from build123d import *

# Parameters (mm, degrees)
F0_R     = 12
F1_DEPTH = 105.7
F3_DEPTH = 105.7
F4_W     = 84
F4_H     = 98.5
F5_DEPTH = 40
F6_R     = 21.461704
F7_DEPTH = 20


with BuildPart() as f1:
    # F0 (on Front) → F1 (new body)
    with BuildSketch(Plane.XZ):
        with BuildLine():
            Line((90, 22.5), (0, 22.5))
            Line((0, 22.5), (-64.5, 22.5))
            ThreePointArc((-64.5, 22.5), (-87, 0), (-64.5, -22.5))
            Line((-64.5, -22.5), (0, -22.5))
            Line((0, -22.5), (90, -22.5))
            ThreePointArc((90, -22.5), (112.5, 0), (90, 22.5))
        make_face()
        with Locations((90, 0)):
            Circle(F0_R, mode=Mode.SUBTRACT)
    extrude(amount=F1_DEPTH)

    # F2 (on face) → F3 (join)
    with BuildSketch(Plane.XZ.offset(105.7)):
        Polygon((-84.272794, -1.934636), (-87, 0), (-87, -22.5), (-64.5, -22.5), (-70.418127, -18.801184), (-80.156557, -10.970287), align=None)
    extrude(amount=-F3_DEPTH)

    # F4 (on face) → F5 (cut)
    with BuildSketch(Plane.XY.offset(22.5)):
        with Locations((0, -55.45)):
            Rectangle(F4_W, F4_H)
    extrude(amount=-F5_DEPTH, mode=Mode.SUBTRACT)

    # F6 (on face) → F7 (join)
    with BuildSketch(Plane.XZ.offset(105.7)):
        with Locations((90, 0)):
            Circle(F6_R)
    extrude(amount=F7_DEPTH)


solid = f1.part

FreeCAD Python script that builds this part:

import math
import FreeCAD as App
import Part
import Sketcher

V = App.Vector
Q = App.Units.Quantity


def add_polygon(sketch, points):
    """Adds a closed chain of lines whose ends are joined by coincident constraints."""
    first, n = sketch.GeometryCount, len(points)
    for a, b in zip(points, points[1:] + points[:1]):
        sketch.addGeometry(Part.LineSegment(App.Vector(*a, 0), App.Vector(*b, 0)), False)
    for i in range(n):
        sketch.addConstraint(Sketcher.Constraint("Coincident", first + i, 2, first + (i + 1) % n, 1))

doc = App.newDocument("Part")
body = doc.addObject("PartDesign::Body", "Body")

sketch1 = doc.addObject("Sketcher::SketchObject", "Sketch")
body.addObject(sketch1)
sketch1.AttachmentSupport = (doc.XZ_Plane, [""])
sketch1.MapMode = "FlatFace"
sketch1.addGeometry([
    Part.LineSegment(V(90, 22, 0), V(-64, 22, 0)),
    Part.ArcOfCircle(Part.Circle(V(-64, 0, 0), V(0, 0, 1), 22), math.radians(90), math.radians(270)),
    Part.LineSegment(V(-64, -22, 0), V(90, -22, 0)),
    Part.ArcOfCircle(Part.Circle(V(90, 0, 0), V(0, 0, 1), 22), math.radians(-90), math.radians(90)),
    Part.Circle(V(90, 0, 0), V(0, 0, 1), 12),
], False)
sketch1.addConstraint([
    Sketcher.Constraint("Tangent", 0, 2, 1, 1),
    Sketcher.Constraint("Tangent", 1, 2, 2, 1),
    Sketcher.Constraint("Tangent", 2, 2, 3, 1),
    Sketcher.Constraint("Tangent", 3, 2, 0, 1),
    Sketcher.Constraint("Horizontal", 0),
    Sketcher.Constraint("Horizontal", 2),
    Sketcher.Constraint("Coincident", 4, 3, 3, 3),
    Sketcher.Constraint("PointOnObject", 1, 3, -1),
    Sketcher.Constraint("Diameter", 4, Q("24 mm")),
    Sketcher.Constraint("Radius", 1, Q("22.5 mm")),
    Sketcher.Constraint("DistanceX", 0, 2, 0, 1, Q("154.5 mm")),
    Sketcher.Constraint("DistanceX", -1, 1, 3, 3, Q("90 mm")),
])
pad1 = doc.addObject("PartDesign::Pad", "Pad")
body.addObject(pad1)
pad1.Profile = sketch1
pad1.Length = 105.7

sketch2 = doc.addObject("Sketcher::SketchObject", "Sketch001")
body.addObject(sketch2)
sketch2.AttachmentSupport = (doc.XZ_Plane, [""])
sketch2.MapMode = "FlatFace"
sketch2.AttachmentOffset = App.Placement(V(0, 0, 105.7), App.Rotation())
add_polygon(sketch2, [(-84.3, -1.9), (-87, 0), (-87, -22.5), (-64.5, -22.5), (-70.4, -18.8), (-80.2, -11)])
sketch2.addConstraint([
    Sketcher.Constraint("Vertical", 1),
    Sketcher.Constraint("Horizontal", 2),
    Sketcher.Constraint("PointOnObject", 0, 2, -1),
    Sketcher.Constraint("Equal", 2, 1),
    Sketcher.Constraint("DistanceX", 2, 1, 2, 2, Q("22.5 mm")),
    Sketcher.Constraint("DistanceX", 0, 2, -1, 1, Q("87 mm")),
    Sketcher.Constraint("Distance", 4, Q("12.496398 mm")),
    Sketcher.Constraint("Distance", 0, Q("3.343721 mm")),
    Sketcher.Constraint("Distance", 3, Q("6.97893 mm")),
    Sketcher.Constraint("Distance", 5, Q("9.929068 mm")),
    Sketcher.Constraint("DistanceX", 4, 2, 3, 2, Q("9.73843 mm")),
    Sketcher.Constraint("DistanceY", 4, 2, 5, 2, Q("9.035651 mm")),
])
pad2 = doc.addObject("PartDesign::Pad", "Pad001")
body.addObject(pad2)
pad2.Profile = sketch2
pad2.Length = 105.7
pad2.Reversed = True

sketch3 = doc.addObject("Sketcher::SketchObject", "Sketch002")
body.addObject(sketch3)
sketch3.AttachmentSupport = (doc.XY_Plane, [""])
sketch3.MapMode = "FlatFace"
sketch3.AttachmentOffset = App.Placement(V(0, 0, 22.5), App.Rotation())
add_polygon(sketch3, [(-42, -6), (-42, -105), (42, -105), (42, -6)])
sketch3.addConstraint([
    Sketcher.Constraint("Vertical", 0),
    Sketcher.Constraint("Horizontal", 1),
    Sketcher.Constraint("Vertical", 2),
    Sketcher.Constraint("Horizontal", 3),
    Sketcher.Constraint("DistanceX", 1, 1, 1, 2, Q("84 mm")),
    Sketcher.Constraint("DistanceY", 0, 2, 0, 1, Q("98.5 mm")),
    Sketcher.Constraint("DistanceX", 0, 2, -1, 1, Q("42 mm")),
    Sketcher.Constraint("DistanceY", 0, 2, -1, 1, Q("104.7 mm")),
])
pocket1 = doc.addObject("PartDesign::Pocket", "Pocket")
body.addObject(pocket1)
pocket1.Profile = sketch3
pocket1.Length = 40

sketch4 = doc.addObject("Sketcher::SketchObject", "Sketch003")
body.addObject(sketch4)
sketch4.AttachmentSupport = (doc.XZ_Plane, [""])
sketch4.MapMode = "FlatFace"
sketch4.AttachmentOffset = App.Placement(V(0, 0, 105.7), App.Rotation())
sketch4.addGeometry(Part.Circle(V(90, 0, 0), V(0, 0, 1), 21), False)
sketch4.addConstraint([
    Sketcher.Constraint("PointOnObject", 0, 3, -1),
    Sketcher.Constraint("DistanceX", -1, 1, 0, 3, Q("90 mm")),
    Sketcher.Constraint("Diameter", 0, Q("42.923408 mm")),
])
pad3 = doc.addObject("PartDesign::Pad", "Pad002")
body.addObject(pad3)
pad3.Profile = sketch4
pad3.Length = 20

doc.recompute()
